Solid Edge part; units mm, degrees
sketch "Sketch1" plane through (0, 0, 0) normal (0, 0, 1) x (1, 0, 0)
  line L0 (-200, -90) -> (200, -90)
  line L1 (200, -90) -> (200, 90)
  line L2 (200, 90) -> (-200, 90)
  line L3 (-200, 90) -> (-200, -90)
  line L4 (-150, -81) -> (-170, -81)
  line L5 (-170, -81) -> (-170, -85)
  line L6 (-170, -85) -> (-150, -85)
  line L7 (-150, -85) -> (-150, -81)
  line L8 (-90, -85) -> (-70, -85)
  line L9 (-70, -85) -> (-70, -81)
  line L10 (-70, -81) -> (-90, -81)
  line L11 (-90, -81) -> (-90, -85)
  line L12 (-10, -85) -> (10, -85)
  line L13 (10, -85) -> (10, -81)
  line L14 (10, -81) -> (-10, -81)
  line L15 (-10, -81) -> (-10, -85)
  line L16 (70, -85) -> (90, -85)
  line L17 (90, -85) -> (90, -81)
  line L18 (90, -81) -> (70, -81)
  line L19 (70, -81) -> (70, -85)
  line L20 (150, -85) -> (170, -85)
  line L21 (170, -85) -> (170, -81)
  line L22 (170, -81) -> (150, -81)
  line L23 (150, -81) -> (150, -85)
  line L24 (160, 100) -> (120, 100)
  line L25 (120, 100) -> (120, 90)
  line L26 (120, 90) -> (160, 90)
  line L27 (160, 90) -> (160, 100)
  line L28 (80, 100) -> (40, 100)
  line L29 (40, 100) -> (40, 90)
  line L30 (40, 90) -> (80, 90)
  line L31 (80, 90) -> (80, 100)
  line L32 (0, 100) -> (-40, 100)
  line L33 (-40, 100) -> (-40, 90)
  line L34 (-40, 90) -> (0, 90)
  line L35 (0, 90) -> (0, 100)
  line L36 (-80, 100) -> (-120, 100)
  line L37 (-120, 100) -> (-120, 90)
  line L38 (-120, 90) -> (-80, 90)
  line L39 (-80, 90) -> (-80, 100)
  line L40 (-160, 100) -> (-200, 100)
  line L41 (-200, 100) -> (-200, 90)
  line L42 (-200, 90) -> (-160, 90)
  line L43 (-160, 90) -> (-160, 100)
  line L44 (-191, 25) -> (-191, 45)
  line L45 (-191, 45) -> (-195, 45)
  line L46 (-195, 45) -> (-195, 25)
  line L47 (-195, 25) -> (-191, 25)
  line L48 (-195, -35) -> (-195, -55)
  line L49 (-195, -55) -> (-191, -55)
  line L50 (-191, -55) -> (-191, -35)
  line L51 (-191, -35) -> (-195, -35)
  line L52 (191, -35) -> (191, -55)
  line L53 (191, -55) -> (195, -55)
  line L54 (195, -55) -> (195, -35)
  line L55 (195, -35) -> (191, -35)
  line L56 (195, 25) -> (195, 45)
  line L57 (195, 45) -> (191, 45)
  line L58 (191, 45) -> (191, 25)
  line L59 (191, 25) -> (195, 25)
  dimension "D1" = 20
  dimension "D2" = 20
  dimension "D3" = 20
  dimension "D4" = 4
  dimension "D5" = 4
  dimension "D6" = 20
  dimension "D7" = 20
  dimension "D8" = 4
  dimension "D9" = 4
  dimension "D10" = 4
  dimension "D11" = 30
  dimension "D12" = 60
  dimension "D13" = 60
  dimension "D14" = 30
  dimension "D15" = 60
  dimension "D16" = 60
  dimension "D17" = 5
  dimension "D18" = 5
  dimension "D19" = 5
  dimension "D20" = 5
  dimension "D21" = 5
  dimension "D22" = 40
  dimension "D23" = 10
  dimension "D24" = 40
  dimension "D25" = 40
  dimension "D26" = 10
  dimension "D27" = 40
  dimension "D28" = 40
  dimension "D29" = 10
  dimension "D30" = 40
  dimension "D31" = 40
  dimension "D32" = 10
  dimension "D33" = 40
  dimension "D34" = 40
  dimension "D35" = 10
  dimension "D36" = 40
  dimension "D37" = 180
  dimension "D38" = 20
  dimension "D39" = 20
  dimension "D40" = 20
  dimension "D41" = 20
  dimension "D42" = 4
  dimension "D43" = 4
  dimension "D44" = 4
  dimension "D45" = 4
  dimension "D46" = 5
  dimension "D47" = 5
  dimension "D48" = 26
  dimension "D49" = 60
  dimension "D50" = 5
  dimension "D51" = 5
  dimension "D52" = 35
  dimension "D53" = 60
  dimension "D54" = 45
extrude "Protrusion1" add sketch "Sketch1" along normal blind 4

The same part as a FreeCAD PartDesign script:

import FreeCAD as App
import Part
import Sketcher
from FreeCAD import Vector

doc = App.newDocument("Part")
params = doc.addObject("Spreadsheet::Sheet", "Params")
for row, (alias, value) in enumerate([
    ("sketch1_width", "400 mm"),
    ("sketch1_width2", "20 mm"),
    ("sketch1_width3", "4 mm"),
    ("sketch1_height", "180 mm"),
    ("sketch1_height2", "10 mm"),
    ("pad1_length", "4 mm"),
], start=1):
    params.set(f"A{row}", alias)
    params.set(f"B{row}", "=" + value)
    params.setAlias(f"B{row}", alias)

body = doc.addObject("PartDesign::Body", "Body")

# Sketch on XY plane
sketch1 = doc.addObject("Sketcher::SketchObject", "Sketch")
body.addObject(sketch1)
sketch1.AttachmentSupport = (doc.XY_Plane, [""])
sketch1.MapMode = "FlatFace"
sketch1.addGeometry(Part.LineSegment(Vector(-200, -90, 0), Vector(200, -90, 0)), False)
sketch1.addGeometry(Part.LineSegment(Vector(200, -90, 0), Vector(200, 90, 0)), False)
sketch1.addGeometry(Part.LineSegment(Vector(200, 90, 0), Vector(160, 90, 0)), False)
sketch1.addGeometry(Part.LineSegment(Vector(160, 90, 0), Vector(160, 100, 0)), False)
sketch1.addGeometry(Part.LineSegment(Vector(160, 100, 0), Vector(120, 100, 0)), False)
sketch1.addGeometry(Part.LineSegment(Vector(120, 100, 0), Vector(120, 90, 0)), False)
sketch1.addGeometry(Part.LineSegment(Vector(120, 90, 0), Vector(80, 90, 0)), False)
sketch1.addGeometry(Part.LineSegment(Vector(80, 90, 0), Vector(80, 100, 0)), False)
sketch1.addGeometry(Part.LineSegment(Vector(80, 100, 0), Vector(40, 100, 0)), False)
sketch1.addGeometry(Part.LineSegment(Vector(40, 100, 0), Vector(40, 90, 0)), False)
sketch1.addGeometry(Part.LineSegment(Vector(40, 90, 0), Vector(0, 90, 0)), False)
sketch1.addGeometry(Part.LineSegment(Vector(0, 90, 0), Vector(0, 100, 0)), False)
sketch1.addGeometry(Part.LineSegment(Vector(0, 100, 0), Vector(-40, 100, 0)), False)
sketch1.addGeometry(Part.LineSegment(Vector(-40, 100, 0), Vector(-40, 90, 0)), False)
sketch1.addGeometry(Part.LineSegment(Vector(-40, 90, 0), Vector(-80, 90, 0)), False)
sketch1.addGeometry(Part.LineSegment(Vector(-80, 90, 0), Vector(-80, 100, 0)), False)
sketch1.addGeometry(Part.LineSegment(Vector(-80, 100, 0), Vector(-120, 100, 0)), False)
sketch1.addGeometry(Part.LineSegment(Vector(-120, 100, 0), Vector(-120, 90, 0)), False)
sketch1.addGeometry(Part.LineSegment(Vector(-120, 90, 0), Vector(-160, 90, 0)), False)
sketch1.addGeometry(Part.LineSegment(Vector(-160, 90, 0), Vector(-160, 100, 0)), False)
sketch1.addGeometry(Part.LineSegment(Vector(-160, 100, 0), Vector(-200, 100, 0)), False)
sketch1.addGeometry(Part.LineSegment(Vector(-200, 100, 0), Vector(-200, -90, 0)), False)
sketch1.addGeometry(Part.LineSegment(Vector(-170, -81, 0), Vector(-150, -81, 0)), False)
sketch1.addGeometry(Part.LineSegment(Vector(-150, -81, 0), Vector(-150, -85, 0)), False)
sketch1.addGeometry(Part.LineSegment(Vector(-150, -85, 0), Vector(-170, -85, 0)), False)
sketch1.addGeometry(Part.LineSegment(Vector(-170, -85, 0), Vector(-170, -81, 0)), False)
sketch1.addGeometry(Part.LineSegment(Vector(-195, -55, 0), Vector(-195, -35, 0)), False)
sketch1.addGeometry(Part.LineSegment(Vector(-195, -35, 0), Vector(-191, -35, 0)), False)
sketch1.addGeometry(Part.LineSegment(Vector(-191, -35, 0), Vector(-191, -55, 0)), False)
sketch1.addGeometry(Part.LineSegment(Vector(-191, -55, 0), Vector(-195, -55, 0)), False)
sketch1.addGeometry(Part.LineSegment(Vector(-70, -85, 0), Vector(-90, -85, 0)), False)
sketch1.addGeometry(Part.LineSegment(Vector(-90, -85, 0), Vector(-90, -81, 0)), False)
sketch1.addGeometry(Part.LineSegment(Vector(-90, -81, 0), Vector(-70, -81, 0)), False)
sketch1.addGeometry(Part.LineSegment(Vector(-70, -81, 0), Vector(-70, -85, 0)), False)
sketch1.addGeometry(Part.LineSegment(Vector(10, -85, 0), Vector(-10, -85, 0)), False)
sketch1.addGeometry(Part.LineSegment(Vector(-10, -85, 0), Vector(-10, -81, 0)), False)
sketch1.addGeometry(Part.LineSegment(Vector(-10, -81, 0), Vector(10, -81, 0)), False)
sketch1.addGeometry(Part.LineSegment(Vector(10, -81, 0), Vector(10, -85, 0)), False)
sketch1.addGeometry(Part.LineSegment(Vector(90, -85, 0), Vector(70, -85, 0)), False)
sketch1.addGeometry(Part.LineSegment(Vector(70, -85, 0), Vector(70, -81, 0)), False)
sketch1.addGeometry(Part.LineSegment(Vector(70, -81, 0), Vector(90, -81, 0)), False)
sketch1.addGeometry(Part.LineSegment(Vector(90, -81, 0), Vector(90, -85, 0)), False)
sketch1.addGeometry(Part.LineSegment(Vector(170, -85, 0), Vector(150, -85, 0)), False)
sketch1.addGeometry(Part.LineSegment(Vector(150, -85, 0), Vector(150, -81, 0)), False)
sketch1.addGeometry(Part.LineSegment(Vector(150, -81, 0), Vector(170, -81, 0)), False)
sketch1.addGeometry(Part.LineSegment(Vector(170, -81, 0), Vector(170, -85, 0)), False)
sketch1.addGeometry(Part.LineSegment(Vector(191, -55, 0), Vector(191, -35, 0)), False)
sketch1.addGeometry(Part.LineSegment(Vector(191, -35, 0), Vector(195, -35, 0)), False)
sketch1.addGeometry(Part.LineSegment(Vector(195, -35, 0), Vector(195, -55, 0)), False)
sketch1.addGeometry(Part.LineSegment(Vector(195, -55, 0), Vector(191, -55, 0)), False)
sketch1.addGeometry(Part.LineSegment(Vector(-191, 45, 0), Vector(-191, 25, 0)), False)
sketch1.addGeometry(Part.LineSegment(Vector(-191, 25, 0), Vector(-195, 25, 0)), False)
sketch1.addGeometry(Part.LineSegment(Vector(-195, 25, 0), Vector(-195, 45, 0)), False)
sketch1.addGeometry(Part.LineSegment(Vector(-195, 45, 0), Vector(-191, 45, 0)), False)
sketch1.addGeometry(Part.LineSegment(Vector(195, 45, 0), Vector(195, 25, 0)), False)
sketch1.addGeometry(Part.LineSegment(Vector(195, 25, 0), Vector(191, 25, 0)), False)
sketch1.addGeometry(Part.LineSegment(Vector(191, 25, 0), Vector(191, 45, 0)), False)
sketch1.addGeometry(Part.LineSegment(Vector(191, 45, 0), Vector(195, 45, 0)), False)
sketch1.addConstraint(Sketcher.Constraint("Coincident", 0, 2, 1, 1))
sketch1.addConstraint(Sketcher.Constraint("Coincident", 1, 2, 2, 1))
sketch1.addConstraint(Sketcher.Constraint("Coincident", 2, 2, 3, 1))
sketch1.addConstraint(Sketcher.Constraint("Coincident", 3, 2, 4, 1))
sketch1.addConstraint(Sketcher.Constraint("Coincident", 4, 2, 5, 1))
sketch1.addConstraint(Sketcher.Constraint("Coincident", 5, 2, 6, 1))
sketch1.addConstraint(Sketcher.Constraint("Coincident", 6, 2, 7, 1))
sketch1.addConstraint(Sketcher.Constraint("Coincident", 7, 2, 8, 1))
sketch1.addConstraint(Sketcher.Constraint("Coincident", 8, 2, 9, 1))
sketch1.addConstraint(Sketcher.Constraint("Coincident", 9, 2, 10, 1))
sketch1.addConstraint(Sketcher.Constraint("Coincident", 10, 2, 11, 1))
sketch1.addConstraint(Sketcher.Constraint("Coincident", 11, 2, 12, 1))
sketch1.addConstraint(Sketcher.Constraint("Coincident", 12, 2, 13, 1))
sketch1.addConstraint(Sketcher.Constraint("Coincident", 13, 2, 14, 1))
sketch1.addConstraint(Sketcher.Constraint("Coincident", 14, 2, 15, 1))
sketch1.addConstraint(Sketcher.Constraint("Coincident", 15, 2, 16, 1))
sketch1.addConstraint(Sketcher.Constraint("Coincident", 16, 2, 17, 1))
sketch1.addConstraint(Sketcher.Constraint("Coincident", 17, 2, 18, 1))
sketch1.addConstraint(Sketcher.Constraint("Coincident", 18, 2, 19, 1))
sketch1.addConstraint(Sketcher.Constraint("Coincident", 19, 2, 20, 1))
sketch1.addConstraint(Sketcher.Constraint("Coincident", 20, 2, 21, 1))
sketch1.addConstraint(Sketcher.Constraint("Coincident", 21, 2, 0, 1))
sketch1.addConstraint(Sketcher.Constraint("Coincident", 22, 2, 23, 1))
sketch1.addConstraint(Sketcher.Constraint("Coincident", 23, 2, 24, 1))
sketch1.addConstraint(Sketcher.Constraint("Coincident", 24, 2, 25, 1))
sketch1.addConstraint(Sketcher.Constraint("Coincident", 25, 2, 22, 1))
sketch1.addConstraint(Sketcher.Constraint("Coincident", 26, 2, 27, 1))
sketch1.addConstraint(Sketcher.Constraint("Coincident", 27, 2, 28, 1))
sketch1.addConstraint(Sketcher.Constraint("Coincident", 28, 2, 29, 1))
sketch1.addConstraint(Sketcher.Constraint("Coincident", 29, 2, 26, 1))
sketch1.addConstraint(Sketcher.Constraint("Coincident", 30, 2, 31, 1))
sketch1.addConstraint(Sketcher.Constraint("Coincident", 31, 2, 32, 1))
sketch1.addConstraint(Sketcher.Constraint("Coincident", 32, 2, 33, 1))
sketch1.addConstraint(Sketcher.Constraint("Coincident", 33, 2, 30, 1))
sketch1.addConstraint(Sketcher.Constraint("Coincident", 34, 2, 35, 1))
sketch1.addConstraint(Sketcher.Constraint("Coincident", 35, 2, 36, 1))
sketch1.addConstraint(Sketcher.Constraint("Coincident", 36, 2, 37, 1))
sketch1.addConstraint(Sketcher.Constraint("Coincident", 37, 2, 34, 1))
sketch1.addConstraint(Sketcher.Constraint("Coincident", 38, 2, 39, 1))
sketch1.addConstraint(Sketcher.Constraint("Coincident", 39, 2, 40, 1))
sketch1.addConstraint(Sketcher.Constraint("Coincident", 40, 2, 41, 1))
sketch1.addConstraint(Sketcher.Constraint("Coincident", 41, 2, 38, 1))
sketch1.addConstraint(Sketcher.Constraint("Coincident", 42, 2, 43, 1))
sketch1.addConstraint(Sketcher.Constraint("Coincident", 43, 2, 44, 1))
sketch1.addConstraint(Sketcher.Constraint("Coincident", 44, 2, 45, 1))
sketch1.addConstraint(Sketcher.Constraint("Coincident", 45, 2, 42, 1))
sketch1.addConstraint(Sketcher.Constraint("Coincident", 46, 2, 47, 1))
sketch1.addConstraint(Sketcher.Constraint("Coincident", 47, 2, 48, 1))
sketch1.addConstraint(Sketcher.Constraint("Coincident", 48, 2, 49, 1))
sketch1.addConstraint(Sketcher.Constraint("Coincident", 49, 2, 46, 1))
sketch1.addConstraint(Sketcher.Constraint("Coincident", 50, 2, 51, 1))
sketch1.addConstraint(Sketcher.Constraint("Coincident", 51, 2, 52, 1))
sketch1.addConstraint(Sketcher.Constraint("Coincident", 52, 2, 53, 1))
sketch1.addConstraint(Sketcher.Constraint("Coincident", 53, 2, 50, 1))
sketch1.addConstraint(Sketcher.Constraint("Coincident", 54, 2, 55, 1))
sketch1.addConstraint(Sketcher.Constraint("Coincident", 55, 2, 56, 1))
sketch1.addConstraint(Sketcher.Constraint("Coincident", 56, 2, 57, 1))
sketch1.addConstraint(Sketcher.Constraint("Coincident", 57, 2, 54, 1))
sketch1.addConstraint(Sketcher.Constraint("Horizontal", 0))
sketch1.addConstraint(Sketcher.Constraint("Vertical", 1))
sketch1.addConstraint(Sketcher.Constraint("Horizontal", 2))
sketch1.addConstraint(Sketcher.Constraint("Vertical", 3))
sketch1.addConstraint(Sketcher.Constraint("Horizontal", 4))
sketch1.addConstraint(Sketcher.Constraint("Vertical", 5))
sketch1.addConstraint(Sketcher.Constraint("Horizontal", 6))
sketch1.addConstraint(Sketcher.Constraint("Vertical", 7))
sketch1.addConstraint(Sketcher.Constraint("Horizontal", 8))
sketch1.addConstraint(Sketcher.Constraint("Vertical", 9))
sketch1.addConstraint(Sketcher.Constraint("Horizontal", 10))
sketch1.addConstraint(Sketcher.Constraint("Vertical", 11))
sketch1.addConstraint(Sketcher.Constraint("Horizontal", 12))
sketch1.addConstraint(Sketcher.Constraint("Vertical", 13))
sketch1.addConstraint(Sketcher.Constraint("Horizontal", 14))
sketch1.addConstraint(Sketcher.Constraint("Vertical", 15))
sketch1.addConstraint(Sketcher.Constraint("Horizontal", 16))
sketch1.addConstraint(Sketcher.Constraint("Vertical", 17))
sketch1.addConstraint(Sketcher.Constraint("Horizontal", 18))
sketch1.addConstraint(Sketcher.Constraint("Vertical", 19))
sketch1.addConstraint(Sketcher.Constraint("Horizontal", 20))
sketch1.addConstraint(Sketcher.Constraint("Vertical", 21))
sketch1.addConstraint(Sketcher.Constraint("Horizontal", 22))
sketch1.addConstraint(Sketcher.Constraint("Vertical", 23))
sketch1.addConstraint(Sketcher.Constraint("Horizontal", 24))
sketch1.addConstraint(Sketcher.Constraint("Vertical", 25))
sketch1.addConstraint(Sketcher.Constraint("Vertical", 26))
sketch1.addConstraint(Sketcher.Constraint("Horizontal", 27))
sketch1.addConstraint(Sketcher.Constraint("Vertical", 28))
sketch1.addConstraint(Sketcher.Constraint("Horizontal", 29))
sketch1.addConstraint(Sketcher.Constraint("Horizontal", 30))
sketch1.addConstraint(Sketcher.Constraint("Vertical", 31))
sketch1.addConstraint(Sketcher.Constraint("Horizontal", 32))
sketch1.addConstraint(Sketcher.Constraint("Vertical", 33))
sketch1.addConstraint(Sketcher.Constraint("Horizontal", 34))
sketch1.addConstraint(Sketcher.Constraint("Vertical", 35))
sketch1.addConstraint(Sketcher.Constraint("Horizontal", 36))
sketch1.addConstraint(Sketcher.Constraint("Vertical", 37))
sketch1.addConstraint(Sketcher.Constraint("Horizontal", 38))
sketch1.addConstraint(Sketcher.Constraint("Vertical", 39))
sketch1.addConstraint(Sketcher.Constraint("Horizontal", 40))
sketch1.addConstraint(Sketcher.Constraint("Vertical", 41))
sketch1.addConstraint(Sketcher.Constraint("Horizontal", 42))
sketch1.addConstraint(Sketcher.Constraint("Vertical", 43))
sketch1.addConstraint(Sketcher.Constraint("Horizontal", 44))
sketch1.addConstraint(Sketcher.Constraint("Vertical", 45))
sketch1.addConstraint(Sketcher.Constraint("Vertical", 46))
sketch1.addConstraint(Sketcher.Constraint("Horizontal", 47))
sketch1.addConstraint(Sketcher.Constraint("Vertical", 48))
sketch1.addConstraint(Sketcher.Constraint("Horizontal", 49))
sketch1.addConstraint(Sketcher.Constraint("Vertical", 50))
sketch1.addConstraint(Sketcher.Constraint("Horizontal", 51))
sketch1.addConstraint(Sketcher.Constraint("Vertical", 52))
sketch1.addConstraint(Sketcher.Constraint("Horizontal", 53))
sketch1.addConstraint(Sketcher.Constraint("Vertical", 54))
sketch1.addConstraint(Sketcher.Constraint("Horizontal", 55))
sketch1.addConstraint(Sketcher.Constraint("Vertical", 56))
sketch1.addConstraint(Sketcher.Constraint("Horizontal", 57))
sketch1.addConstraint(Sketcher.Constraint("Symmetric", 1, 2, 21, 2, -1, 1))
sketch1.addConstraint(Sketcher.Constraint("Symmetric", 8, 2, 12, 2, -2))
sketch1.addConstraint(Sketcher.Constraint("Symmetric", 6, 2, 14, 2, -2))
sketch1.addConstraint(Sketcher.Constraint("Symmetric", 4, 2, 16, 2, -2))
sketch1.addConstraint(Sketcher.Constraint("Symmetric", 2, 2, 18, 2, -2))
sketch1.addConstraint(Sketcher.Constraint("Symmetric", 33, 2, 38, 2, -2))
sketch1.addConstraint(Sketcher.Constraint("Symmetric", 31, 2, 40, 2, -2))
sketch1.addConstraint(Sketcher.Constraint("Symmetric", 23, 2, 42, 2, -2))
sketch1.addConstraint(Sketcher.Constraint("Symmetric", 25, 2, 44, 2, -2))
sketch1.addConstraint(Sketcher.Constraint("Symmetric", 27, 2, 46, 2, -2))
sketch1.addConstraint(Sketcher.Constraint("Symmetric", 29, 2, 48, 2, -2))
sketch1.addConstraint(Sketcher.Constraint("Symmetric", 51, 2, 54, 2, -2))
sketch1.addConstraint(Sketcher.Constraint("Symmetric", 53, 2, 56, 2, -2))
sketch1.addConstraint(Sketcher.Constraint("PointOnObject", 10, 2, -2))
sketch1.addConstraint(Sketcher.Constraint("Horizontal", 2, 2, 5, 2))
sketch1.addConstraint(Sketcher.Constraint("Horizontal", 4, 2, 7, 2))
sketch1.addConstraint(Sketcher.Constraint("Horizontal", 6, 2, 9, 2))
sketch1.addConstraint(Sketcher.Constraint("Horizontal", 16, 2, 19, 2))
sketch1.addConstraint(Sketcher.Constraint("Horizontal", 24, 2, 30, 2))
sketch1.addConstraint(Sketcher.Constraint("Horizontal", 25, 2, 31, 2))
sketch1.addConstraint(Sketcher.Constraint("Horizontal", 33, 2, 34, 2))
sketch1.addConstraint(Sketcher.Constraint("Horizontal", 32, 2, 35, 2))
sketch1.addConstraint(Sketcher.Constraint("Vertical", 28, 2, 50, 2))
sketch1.addConstraint(Sketcher.Constraint("Vertical", 29, 2, 51, 2))
sketch1.addConstraint(Sketcher.Constraint("Equal", 2, 4))
sketch1.addConstraint(Sketcher.Constraint("Equal", 4, 6))
sketch1.addConstraint(Sketcher.Constraint("Equal", 6, 8))
sketch1.addConstraint(Sketcher.Constraint("Equal", 8, 10))
sketch1.addConstraint(Sketcher.Constraint("Equal", 24, 30))
sketch1.addConstraint(Sketcher.Constraint("Equal", 32, 34))
sketch1.addConstraint(Sketcher.Constraint("Equal", 57, 23))
sketch1.addConstraint(Sketcher.Constraint("Equal", 44, 26))
sketch1.addConstraint(Sketcher.Constraint("Equal", 48, 50))
sketch1.addConstraint(Sketcher.Constraint("DistanceX", 0, 1, 0, 2, 400.0))
sketch1.addConstraint(Sketcher.Constraint("DistanceX", 22, 1, 22, 2, 20.0))
sketch1.addConstraint(Sketcher.Constraint("DistanceX", 27, 1, 27, 2, 4.0))
sketch1.addConstraint(Sketcher.Constraint("DistanceY", 1, 1, 1, 2, 180.0))
sketch1.addConstraint(Sketcher.Constraint("DistanceY", 3, 1, 3, 2, 10.0))
sketch1.addConstraint(Sketcher.Constraint("DistanceX", 22, 2, -1, 1, 150.0))
sketch1.addConstraint(Sketcher.Constraint("DistanceY", 22, 2, -1, 1, 81.0))
sketch1.addConstraint(Sketcher.Constraint("DistanceX", 26, 2, -1, 1, 195.0))
sketch1.addConstraint(Sketcher.Constraint("DistanceY", 26, 2, -1, 1, 35.0))
sketch1.addConstraint(Sketcher.Constraint("DistanceX", 30, 2, -1, 1, 90.0))
sketch1.addConstraint(Sketcher.Constraint("DistanceX", 34, 2, -1, 1, 10.0))
sketch1.addConstraint(Sketcher.Constraint("DistanceY", -1, 1, 50, 2, 25.0))
sketch1.setExpression("Constraints[149]", "Params.sketch1_width")
sketch1.setExpression("Constraints[150]", "Params.sketch1_width2")
sketch1.setExpression("Constraints[151]", "Params.sketch1_width3")
sketch1.setExpression("Constraints[152]", "Params.sketch1_height")
sketch1.setExpression("Constraints[153]", "Params.sketch1_height2")
pad1 = doc.addObject("PartDesign::Pad", "Pad")
body.addObject(pad1)
pad1.Profile = sketch1
pad1.setExpression("Length", "Params.pad1_length")

doc.recompute()
